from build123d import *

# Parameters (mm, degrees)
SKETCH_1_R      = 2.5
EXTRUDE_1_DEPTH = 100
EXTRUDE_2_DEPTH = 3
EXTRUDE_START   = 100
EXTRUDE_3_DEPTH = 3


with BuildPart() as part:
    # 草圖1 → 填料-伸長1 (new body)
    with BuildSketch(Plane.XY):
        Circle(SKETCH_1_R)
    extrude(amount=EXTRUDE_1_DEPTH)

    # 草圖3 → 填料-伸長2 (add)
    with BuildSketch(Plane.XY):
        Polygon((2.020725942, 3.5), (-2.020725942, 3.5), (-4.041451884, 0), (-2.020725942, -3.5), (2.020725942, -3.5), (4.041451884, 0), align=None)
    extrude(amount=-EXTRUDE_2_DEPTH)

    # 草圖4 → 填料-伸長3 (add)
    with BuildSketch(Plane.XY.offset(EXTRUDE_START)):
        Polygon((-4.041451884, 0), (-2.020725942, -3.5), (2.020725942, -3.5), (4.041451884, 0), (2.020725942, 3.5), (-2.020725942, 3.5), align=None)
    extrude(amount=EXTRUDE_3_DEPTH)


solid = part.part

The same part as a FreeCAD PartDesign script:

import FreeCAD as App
import Part
import Sketcher

V = App.Vector
Q = App.Units.Quantity


def add_polygon(sketch, points):
    """Adds a closed chain of lines whose ends are joined by coincident constraints."""
    first, n = sketch.GeometryCount, len(points)
    for a, b in zip(points, points[1:] + points[:1]):
        sketch.addGeometry(Part.LineSegment(App.Vector(*a, 0), App.Vector(*b, 0)), False)
    for i in range(n):
        sketch.addConstraint(Sketcher.Constraint("Coincident", first + i, 2, first + (i + 1) % n, 1))

doc = App.newDocument("Part")
params = doc.addObject("Spreadsheet::Sheet", "Params")
for row, (alias, value) in enumerate([
    ("sketch1_diameter", "5 mm"),
    ("pad1_length", "100 mm"),
    ("pad2_length", "3 mm"),
    ("pad3_length", "3 mm"),
], start=1):
    params.set(f"A{row}", alias)
    params.set(f"B{row}", "=" + value)
    params.setAlias(f"B{row}", alias)

body = doc.addObject("PartDesign::Body", "Body")

# Sketch on XY plane
sketch1 = body.newObject("Sketcher::SketchObject", "Sketch")
sketch1.AttachmentSupport = (doc.getObject("XY_Plane"), [""])
sketch1.MapMode = "FlatFace"
sketch1.addGeometry(Part.Circle(V(0, 0, 0), V(0, 0, 1), 2.5), False)
sketch1.addConstraint([
    Sketcher.Constraint("Coincident", 0, 3, -1, 1),
    Sketcher.Constraint("Diameter", 0, Q("5 mm")),
])
sketch1.setExpression("Constraints[1]", "Params.sketch1_diameter")
pad1 = body.newObject("PartDesign::Pad", "Pad")
pad1.Profile = sketch1
pad1.setExpression("Length", "Params.pad1_length")

# Sketch on XY plane
sketch2 = body.newObject("Sketcher::SketchObject", "Sketch001")
sketch2.AttachmentSupport = (doc.getObject("XY_Plane"), [""])
sketch2.MapMode = "FlatFace"
add_polygon(sketch2, [(2, 3.5), (-2, 3.5), (-4, 0), (-2, -3.5), (2, -3.5), (4, 0)])  # lines 0-5
sketch2.addConstraint([
    Sketcher.Constraint("Horizontal", 0),
    Sketcher.Constraint("Horizontal", 3),
    Sketcher.Constraint("Symmetric", 0, 2, 3, 2, -1, 1),
    Sketcher.Constraint("Symmetric", 1, 2, 4, 2, -1, 1),
    Sketcher.Constraint("PointOnObject", 1, 2, -1),
    Sketcher.Constraint("Parallel", 2, 5),
    Sketcher.Constraint("Vertical", 0, 2, 2, 2),
    Sketcher.Constraint("Angle", 1, Q("-120 deg")),
    Sketcher.Constraint("DistanceY", 2, 2, 0, 2, Q("7 mm")),
    Sketcher.Constraint("DistanceX", 0, 2, 0, 1, Q("4.041452 mm")),
])
pad2 = body.newObject("PartDesign::Pad", "Pad001")
pad2.Profile = sketch2
pad2.setExpression("Length", "Params.pad2_length")
pad2.Reversed = True

# Sketch on XY plane
sketch3 = body.newObject("Sketcher::SketchObject", "Sketch002")
sketch3.AttachmentSupport = (doc.getObject("XY_Plane"), [""])
sketch3.MapMode = "FlatFace"
sketch3.AttachmentOffset = App.Placement(V(0, 0, 100), App.Rotation())
add_polygon(sketch3, [(-4, 0), (-2, -3.5), (2, -3.5), (4, 0), (2, 3.5), (-2, 3.5)])  # lines 0-5
sketch3.addConstraint([
    Sketcher.Constraint("Horizontal", 1),
    Sketcher.Constraint("Horizontal", 4),
    Sketcher.Constraint("Symmetric", 0, 2, 3, 2, -1, 1),
    Sketcher.Constraint("Symmetric", 2, 2, 5, 2, -1, 1),
    Sketcher.Constraint("PointOnObject", 2, 2, -1),
    Sketcher.Constraint("Parallel", 2, 5),
    Sketcher.Constraint("Vertical", 1, 2, 3, 2),
    Sketcher.Constraint("Angle", 0, Q("-60 deg")),
    Sketcher.Constraint("DistanceY", 1, 2, 3, 2, Q("7 mm")),
    Sketcher.Constraint("DistanceX", 1, 1, 1, 2, Q("4.041452 mm")),
])
pad3 = body.newObject("PartDesign::Pad", "Pad002")
pad3.Profile = sketch3
pad3.setExpression("Length", "Params.pad3_length")

doc.recompute()
